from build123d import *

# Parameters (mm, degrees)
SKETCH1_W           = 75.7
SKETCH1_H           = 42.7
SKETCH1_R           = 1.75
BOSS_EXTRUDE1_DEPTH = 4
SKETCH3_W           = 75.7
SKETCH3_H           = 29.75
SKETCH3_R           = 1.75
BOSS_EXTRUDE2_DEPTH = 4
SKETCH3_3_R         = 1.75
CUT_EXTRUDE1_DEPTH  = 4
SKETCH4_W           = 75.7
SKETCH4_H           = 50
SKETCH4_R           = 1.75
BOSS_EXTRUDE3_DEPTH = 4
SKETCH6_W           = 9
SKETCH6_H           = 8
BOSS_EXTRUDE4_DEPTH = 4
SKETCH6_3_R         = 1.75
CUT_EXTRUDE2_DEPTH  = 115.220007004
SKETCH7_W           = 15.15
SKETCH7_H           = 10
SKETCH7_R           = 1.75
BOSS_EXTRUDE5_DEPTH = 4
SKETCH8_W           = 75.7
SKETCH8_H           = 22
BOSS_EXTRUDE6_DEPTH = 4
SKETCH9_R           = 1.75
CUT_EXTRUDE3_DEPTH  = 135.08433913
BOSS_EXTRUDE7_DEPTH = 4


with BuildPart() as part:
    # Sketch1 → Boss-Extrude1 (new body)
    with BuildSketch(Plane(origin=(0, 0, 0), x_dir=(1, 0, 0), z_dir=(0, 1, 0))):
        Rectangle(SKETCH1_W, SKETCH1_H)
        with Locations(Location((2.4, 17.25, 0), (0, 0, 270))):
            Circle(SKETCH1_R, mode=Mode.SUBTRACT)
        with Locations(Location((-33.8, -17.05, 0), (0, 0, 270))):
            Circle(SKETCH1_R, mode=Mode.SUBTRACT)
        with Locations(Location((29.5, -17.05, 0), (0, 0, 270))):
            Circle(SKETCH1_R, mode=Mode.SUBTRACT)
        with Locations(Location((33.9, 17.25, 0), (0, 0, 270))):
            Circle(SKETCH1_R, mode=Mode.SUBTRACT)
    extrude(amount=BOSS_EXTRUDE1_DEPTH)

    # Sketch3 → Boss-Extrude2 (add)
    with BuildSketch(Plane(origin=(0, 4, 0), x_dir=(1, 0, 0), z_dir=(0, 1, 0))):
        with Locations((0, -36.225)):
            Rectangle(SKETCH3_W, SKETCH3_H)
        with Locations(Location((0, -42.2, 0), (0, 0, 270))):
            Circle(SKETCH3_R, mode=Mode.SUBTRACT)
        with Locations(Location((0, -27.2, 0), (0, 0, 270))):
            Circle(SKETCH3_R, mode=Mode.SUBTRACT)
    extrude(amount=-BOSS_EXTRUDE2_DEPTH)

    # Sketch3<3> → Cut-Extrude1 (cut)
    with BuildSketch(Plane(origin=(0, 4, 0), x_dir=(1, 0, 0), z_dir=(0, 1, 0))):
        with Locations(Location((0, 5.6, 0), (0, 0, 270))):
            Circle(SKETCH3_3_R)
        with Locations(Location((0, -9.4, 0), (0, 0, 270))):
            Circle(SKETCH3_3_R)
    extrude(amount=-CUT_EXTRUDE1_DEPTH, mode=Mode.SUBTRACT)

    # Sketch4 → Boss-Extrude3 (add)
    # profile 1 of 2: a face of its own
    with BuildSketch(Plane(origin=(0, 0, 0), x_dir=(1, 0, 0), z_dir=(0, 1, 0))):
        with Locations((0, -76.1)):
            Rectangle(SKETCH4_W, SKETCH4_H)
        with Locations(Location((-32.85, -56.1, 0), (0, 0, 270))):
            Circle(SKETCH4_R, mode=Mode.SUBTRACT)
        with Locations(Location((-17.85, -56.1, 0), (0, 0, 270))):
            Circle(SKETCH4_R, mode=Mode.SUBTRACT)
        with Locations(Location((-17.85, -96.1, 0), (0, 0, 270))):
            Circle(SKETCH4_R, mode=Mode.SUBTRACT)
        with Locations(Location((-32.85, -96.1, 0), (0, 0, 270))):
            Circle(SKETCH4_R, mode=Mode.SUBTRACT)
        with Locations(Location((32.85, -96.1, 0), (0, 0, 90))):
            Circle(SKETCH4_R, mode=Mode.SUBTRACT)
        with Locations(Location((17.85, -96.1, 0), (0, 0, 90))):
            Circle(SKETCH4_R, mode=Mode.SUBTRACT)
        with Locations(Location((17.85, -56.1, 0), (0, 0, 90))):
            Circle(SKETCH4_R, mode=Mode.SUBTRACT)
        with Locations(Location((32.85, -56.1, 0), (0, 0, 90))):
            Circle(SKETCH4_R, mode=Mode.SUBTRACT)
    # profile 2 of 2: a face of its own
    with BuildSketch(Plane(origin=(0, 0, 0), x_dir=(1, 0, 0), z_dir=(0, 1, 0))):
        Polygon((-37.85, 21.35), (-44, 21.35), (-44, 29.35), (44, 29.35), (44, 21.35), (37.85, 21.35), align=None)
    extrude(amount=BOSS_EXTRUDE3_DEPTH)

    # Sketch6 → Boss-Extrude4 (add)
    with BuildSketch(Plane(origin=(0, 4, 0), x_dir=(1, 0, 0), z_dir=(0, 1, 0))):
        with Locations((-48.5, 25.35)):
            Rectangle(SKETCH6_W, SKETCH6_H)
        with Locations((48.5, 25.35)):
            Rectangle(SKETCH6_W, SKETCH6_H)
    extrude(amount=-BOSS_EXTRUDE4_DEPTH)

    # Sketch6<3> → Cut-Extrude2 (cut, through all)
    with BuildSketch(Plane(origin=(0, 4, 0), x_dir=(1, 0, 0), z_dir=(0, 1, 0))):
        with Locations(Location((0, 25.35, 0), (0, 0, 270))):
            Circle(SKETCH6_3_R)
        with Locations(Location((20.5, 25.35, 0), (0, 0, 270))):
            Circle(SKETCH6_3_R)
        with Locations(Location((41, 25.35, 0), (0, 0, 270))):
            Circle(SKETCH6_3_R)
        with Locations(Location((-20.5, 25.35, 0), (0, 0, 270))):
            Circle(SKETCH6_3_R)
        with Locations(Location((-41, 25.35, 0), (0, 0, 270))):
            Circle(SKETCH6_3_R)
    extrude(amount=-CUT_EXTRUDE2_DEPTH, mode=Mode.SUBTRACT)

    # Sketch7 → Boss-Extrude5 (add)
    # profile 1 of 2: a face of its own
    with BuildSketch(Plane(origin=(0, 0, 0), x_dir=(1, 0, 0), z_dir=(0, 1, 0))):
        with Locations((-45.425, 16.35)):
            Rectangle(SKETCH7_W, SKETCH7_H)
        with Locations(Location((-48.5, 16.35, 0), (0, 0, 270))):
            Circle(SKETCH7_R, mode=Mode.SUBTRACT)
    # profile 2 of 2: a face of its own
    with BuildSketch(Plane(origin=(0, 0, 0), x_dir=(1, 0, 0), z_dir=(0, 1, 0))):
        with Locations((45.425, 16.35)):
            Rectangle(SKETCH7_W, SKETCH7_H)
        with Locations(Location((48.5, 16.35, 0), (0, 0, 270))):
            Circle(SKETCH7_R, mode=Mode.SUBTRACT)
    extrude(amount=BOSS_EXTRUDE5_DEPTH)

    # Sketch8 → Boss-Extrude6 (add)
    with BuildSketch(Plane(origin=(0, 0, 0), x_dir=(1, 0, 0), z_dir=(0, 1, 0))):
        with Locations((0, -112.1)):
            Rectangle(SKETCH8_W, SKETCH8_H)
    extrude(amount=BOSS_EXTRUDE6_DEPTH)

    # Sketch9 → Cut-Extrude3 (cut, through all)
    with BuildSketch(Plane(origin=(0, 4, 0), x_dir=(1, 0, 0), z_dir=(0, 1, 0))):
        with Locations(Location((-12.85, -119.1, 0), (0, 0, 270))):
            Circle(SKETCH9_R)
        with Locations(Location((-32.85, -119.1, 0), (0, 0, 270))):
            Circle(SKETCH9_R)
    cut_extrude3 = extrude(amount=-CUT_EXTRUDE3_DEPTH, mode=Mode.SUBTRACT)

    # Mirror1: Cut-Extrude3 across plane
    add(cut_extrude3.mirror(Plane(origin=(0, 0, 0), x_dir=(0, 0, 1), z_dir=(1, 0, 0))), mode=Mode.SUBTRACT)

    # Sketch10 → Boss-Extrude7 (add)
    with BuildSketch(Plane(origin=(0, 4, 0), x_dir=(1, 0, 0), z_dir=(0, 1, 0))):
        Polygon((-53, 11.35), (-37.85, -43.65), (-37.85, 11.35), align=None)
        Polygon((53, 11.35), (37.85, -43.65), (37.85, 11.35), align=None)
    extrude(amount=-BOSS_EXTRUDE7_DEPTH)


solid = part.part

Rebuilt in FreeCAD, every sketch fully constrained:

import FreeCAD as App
import Part
import Sketcher
from FreeCAD import Vector

doc = App.newDocument("Part")
body = doc.addObject("PartDesign::Body", "Body")

sketch1 = body.newObject("Sketcher::SketchObject", "Sketch")
sketch1.AttachmentSupport = (doc.getObject("XZ_Plane"), [""])
sketch1.MapMode = "FlatFace"
sketch1.addGeometry([
    Part.LineSegment(Vector(-37.9, -21.4, 0), Vector(-37.9, 21.4, 0)),
    Part.LineSegment(Vector(-37.9, 21.4, 0), Vector(37.9, 21.4, 0)),
    Part.LineSegment(Vector(37.9, 21.4, 0), Vector(37.9, -21.4, 0)),
    Part.LineSegment(Vector(37.9, -21.4, 0), Vector(-37.9, -21.4, 0)),
    Part.Circle(Vector(-33.8, 17.1, 0), Vector(0, 0, 1), 1.8),
    Part.Circle(Vector(29.5, 17.1, 0), Vector(0, 0, 1), 1.8),
    Part.Circle(Vector(2.4, -17.2, 0), Vector(0, 0, 1), 1.8),
    Part.Circle(Vector(33.9, -17.2, 0), Vector(0, 0, 1), 1.8),
], False)
sketch1.addConstraint([
    Sketcher.Constraint("Coincident", 0, 2, 1, 1),
    Sketcher.Constraint("Coincident", 1, 2, 2, 1),
    Sketcher.Constraint("Coincident", 2, 2, 3, 1),
    Sketcher.Constraint("Coincident", 3, 2, 0, 1),
    Sketcher.Constraint("Vertical", 0),
    Sketcher.Constraint("Horizontal", 1),
    Sketcher.Constraint("Vertical", 2),
    Sketcher.Constraint("Horizontal", 3),
    Sketcher.Constraint("Equal", 4, 5),
    Sketcher.Constraint("Equal", 5, 6),
    Sketcher.Constraint("Equal", 6, 7),
    Sketcher.Constraint("Symmetric", 0, 2, 2, 2, -1, 1),
    Sketcher.Constraint("Horizontal", 4, 3, 5, 3),
    Sketcher.Constraint("Horizontal", 6, 3, 7, 3),
    Sketcher.Constraint("Diameter", 4, 3.5),
    Sketcher.Constraint("DistanceX", 1, 1, 1, 2, 75.7),
    Sketcher.Constraint("DistanceY", 0, 1, 0, 2, 42.7),
    Sketcher.Constraint("DistanceX", 4, 3, -1, 1, 33.8),
    Sketcher.Constraint("DistanceX", -1, 1, 5, 3, 29.5),
    Sketcher.Constraint("DistanceX", -1, 1, 6, 3, 2.4),
    Sketcher.Constraint("DistanceX", -1, 1, 7, 3, 33.9),
    Sketcher.Constraint("DistanceY", 6, 3, 5, 3, 34.3),
    Sketcher.Constraint("DistanceY", 4, 3, 0, 2, 4.3),
])
pad1 = body.newObject("PartDesign::Pad", "Pad")
pad1.Profile = sketch1
pad1.Length = 4
pad1.Reversed = True

sketch2 = body.newObject("Sketcher::SketchObject", "Sketch001")
sketch2.AttachmentSupport = (doc.getObject("XZ_Plane"), [""])
sketch2.MapMode = "FlatFace"
sketch2.AttachmentOffset = App.Placement(Vector(0, 0, -4), App.Rotation())
sketch2.addGeometry([
    Part.LineSegment(Vector(-37.9, 21.4, 0), Vector(-37.9, 51.1, 0)),
    Part.LineSegment(Vector(-37.9, 51.1, 0), Vector(37.9, 51.1, 0)),
    Part.LineSegment(Vector(37.9, 51.1, 0), Vector(37.9, 21.4, 0)),
    Part.LineSegment(Vector(37.9, 21.4, 0), Vector(-37.9, 21.4, 0)),
    Part.Circle(Vector(0, 42.2, 0), Vector(0, 0, 1), 1.8),
    Part.Circle(Vector(0, 27.2, 0), Vector(0, 0, 1), 1.8),
], False)
sketch2.addConstraint([
    Sketcher.Constraint("Coincident", 0, 2, 1, 1),
    Sketcher.Constraint("Coincident", 1, 2, 2, 1),
    Sketcher.Constraint("Coincident", 2, 2, 3, 1),
    Sketcher.Constraint("Coincident", 3, 2, 0, 1),
    Sketcher.Constraint("Vertical", 0),
    Sketcher.Constraint("Horizontal", 1),
    Sketcher.Constraint("Vertical", 2),
    Sketcher.Constraint("Horizontal", 3),
    Sketcher.Constraint("Equal", 4, 5),
    Sketcher.Constraint("PointOnObject", 4, 3, -2),
    Sketcher.Constraint("PointOnObject", 5, 3, -2),
    Sketcher.Constraint("Diameter", 4, 3.5),
    Sketcher.Constraint("DistanceX", 1, 1, 1, 2, 75.7),
    Sketcher.Constraint("DistanceY", 5, 3, 4, 3, 15.0),
    Sketcher.Constraint("DistanceY", 0, 1, 0, 2, 29.75),
    Sketcher.Constraint("DistanceY", -1, 1, 4, 3, 42.2),
    Sketcher.Constraint("DistanceY", -1, 1, 0, 2, 51.1),
    Sketcher.Constraint("DistanceX", 0, 2, -1, 1, 37.85),
])
pad2 = body.newObject("PartDesign::Pad", "Pad001")
pad2.Profile = sketch2
pad2.Length = 4

sketch3 = body.newObject("Sketcher::SketchObject", "Sketch002")
sketch3.AttachmentSupport = (doc.getObject("XZ_Plane"), [""])
sketch3.MapMode = "FlatFace"
sketch3.AttachmentOffset = App.Placement(Vector(0, 0, -4), App.Rotation())
sketch3.addGeometry([
    Part.Circle(Vector(0, -5.6, 0), Vector(0, 0, 1), 1.8),
    Part.Circle(Vector(0, 9.4, 0), Vector(0, 0, 1), 1.8),
], False)
sketch3.addConstraint([
    Sketcher.Constraint("Equal", 0, 1),
    Sketcher.Constraint("PointOnObject", 0, 3, -2),
    Sketcher.Constraint("PointOnObject", 1, 3, -2),
    Sketcher.Constraint("Diameter", 0, 3.5),
    Sketcher.Constraint("DistanceY", 0, 3, 1, 3, 15.0),
    Sketcher.Constraint("DistanceY", 0, 3, -1, 1, 5.6),
])
pocket1 = body.newObject("PartDesign::Pocket", "Pocket")
pocket1.Profile = sketch3
pocket1.Length = 4
pocket1.Reversed = True

sketch4 = body.newObject("Sketcher::SketchObject", "Sketch003")
sketch4.AttachmentSupport = (doc.getObject("XZ_Plane"), [""])
sketch4.MapMode = "FlatFace"
sketch4.addGeometry([
    Part.LineSegment(Vector(-37.9, 51.1, 0), Vector(-37.9, 101.1, 0)),
    Part.LineSegment(Vector(-37.9, 101.1, 0), Vector(37.9, 101.1, 0)),
    Part.LineSegment(Vector(37.9, 101.1, 0), Vector(37.9, 51.1, 0)),
    Part.LineSegment(Vector(37.9, 51.1, 0), Vector(-37.9, 51.1, 0)),
    Part.Circle(Vector(-32.9, 96.1, 0), Vector(0, 0, 1), 1.8),
    Part.Circle(Vector(-17.9, 96.1, 0), Vector(0, 0, 1), 1.8),
    Part.Circle(Vector(17.9, 96.1, 0), Vector(0, 0, 1), 1.8),
    Part.Circle(Vector(32.9, 96.1, 0), Vector(0, 0, 1), 1.8),
    Part.Circle(Vector(-32.9, 56.1, 0), Vector(0, 0, 1), 1.8),
    Part.Circle(Vector(-17.9, 56.1, 0), Vector(0, 0, 1), 1.8),
    Part.Circle(Vector(17.9, 56.1, 0), Vector(0, 0, 1), 1.8),
    Part.Circle(Vector(32.9, 56.1, 0), Vector(0, 0, 1), 1.8),
    Part.LineSegment(Vector(-44, -21.4, 0), Vector(44, -21.4, 0)),
    Part.LineSegment(Vector(44, -21.4, 0), Vector(44, -29.4, 0)),
    Part.LineSegment(Vector(44, -29.4, 0), Vector(-44, -29.4, 0)),
    Part.LineSegment(Vector(-44, -29.4, 0), Vector(-44, -21.4, 0)),
], False)
sketch4.addConstraint([
    Sketcher.Constraint("Coincident", 0, 2, 1, 1),
    Sketcher.Constraint("Coincident", 1, 2, 2, 1),
    Sketcher.Constraint("Coincident", 2, 2, 3, 1),
    Sketcher.Constraint("Coincident", 3, 2, 0, 1),
    Sketcher.Constraint("Coincident", 12, 2, 13, 1),
    Sketcher.Constraint("Coincident", 13, 2, 14, 1),
    Sketcher.Constraint("Coincident", 14, 2, 15, 1),
    Sketcher.Constraint("Coincident", 15, 2, 12, 1),
    Sketcher.Constraint("Vertical", 0),
    Sketcher.Constraint("Horizontal", 1),
    Sketcher.Constraint("Vertical", 2),
    Sketcher.Constraint("Horizontal", 3),
    Sketcher.Constraint("Horizontal", 12),
    Sketcher.Constraint("Vertical", 13),
    Sketcher.Constraint("Horizontal", 14),
    Sketcher.Constraint("Vertical", 15),
    Sketcher.Constraint("Equal", 4, 5),
    Sketcher.Constraint("Equal", 5, 6),
    Sketcher.Constraint("Equal", 6, 7),
    Sketcher.Constraint("Equal", 7, 8),
    Sketcher.Constraint("Equal", 8, 9),
    Sketcher.Constraint("Equal", 9, 10),
    Sketcher.Constraint("Equal", 10, 11),
    Sketcher.Constraint("Symmetric", 5, 3, 6, 3, -2),
    Sketcher.Constraint("Symmetric", 4, 3, 7, 3, -2),
    Sketcher.Constraint("Symmetric", 9, 3, 10, 3, -2),
    Sketcher.Constraint("Symmetric", 8, 3, 11, 3, -2),
    Sketcher.Constraint("Horizontal", 4, 3, 5, 3),
    Sketcher.Constraint("Horizontal", 8, 3, 9, 3),
    Sketcher.Constraint("Vertical", 4, 3, 8, 3),
    Sketcher.Constraint("Vertical", 5, 3, 9, 3),
    Sketcher.Constraint("Diameter", 4, 3.5),
    Sketcher.Constraint("DistanceX", 12, 1, 12, 2, 88.0),
    Sketcher.Constraint("DistanceY", 0, 1, 0, 2, 50.0),
    Sketcher.Constraint("DistanceY", 13, 2, 13, 1, 8.0),
    Sketcher.Constraint("DistanceX", 1, 1, 1, 2, 75.7),
    Sketcher.Constraint("DistanceX", -1, 1, 12, 2, 44.0),
    Sketcher.Constraint("DistanceX", 4, 3, 5, 3, 15.0),
    Sketcher.Constraint("DistanceY", 8, 3, 4, 3, 40.0),
    Sketcher.Constraint("DistanceX", 0, 2, 4, 3, 5.0),
    Sketcher.Constraint("DistanceY", 4, 3, 0, 2, 5.0),
    Sketcher.Constraint("DistanceX", 7, 3, 1, 2, 5.0),
    Sketcher.Constraint("DistanceY", -1, 1, 4, 3, 96.1),
    Sketcher.Constraint("DistanceY", 12, 2, -1, 1, 21.35),
])
pad3 = body.newObject("PartDesign::Pad", "Pad002")
pad3.Profile = sketch4
pad3.Length = 4
pad3.Reversed = True

sketch5 = body.newObject("Sketcher::SketchObject", "Sketch004")
sketch5.AttachmentSupport = (doc.getObject("XZ_Plane"), [""])
sketch5.MapMode = "FlatFace"
sketch5.AttachmentOffset = App.Placement(Vector(0, 0, -4), App.Rotation())
sketch5.addGeometry([
    Part.LineSegment(Vector(-53, -29, 0), Vector(-53, -21, 0)),
    Part.LineSegment(Vector(-53, -21, 0), Vector(-44, -21, 0)),
    Part.LineSegment(Vector(-44, -21, 0), Vector(-44, -29, 0)),
    Part.LineSegment(Vector(-44, -29, 0), Vector(-53, -29, 0)),
    Part.LineSegment(Vector(44, -29, 0), Vector(44, -21, 0)),
    Part.LineSegment(Vector(44, -21, 0), Vector(53, -21, 0)),
    Part.LineSegment(Vector(53, -21, 0), Vector(53, -29, 0)),
    Part.LineSegment(Vector(53, -29, 0), Vector(44, -29, 0)),
], False)
sketch5.addConstraint([
    Sketcher.Constraint("Coincident", 0, 2, 1, 1),
    Sketcher.Constraint("Coincident", 1, 2, 2, 1),
    Sketcher.Constraint("Coincident", 2, 2, 3, 1),
    Sketcher.Constraint("Coincident", 3, 2, 0, 1),
    Sketcher.Constraint("Coincident", 4, 2, 5, 1),
    Sketcher.Constraint("Coincident", 5, 2, 6, 1),
    Sketcher.Constraint("Coincident", 6, 2, 7, 1),
    Sketcher.Constraint("Coincident", 7, 2, 4, 1),
    Sketcher.Constraint("Vertical", 0),
    Sketcher.Constraint("Horizontal", 1),
    Sketcher.Constraint("Vertical", 2),
    Sketcher.Constraint("Horizontal", 3),
    Sketcher.Constraint("Vertical", 4),
    Sketcher.Constraint("Horizontal", 5),
    Sketcher.Constraint("Vertical", 6),
    Sketcher.Constraint("Horizontal", 7),
    Sketcher.Constraint("Symmetric", 1, 2, 4, 2, -2),
    Sketcher.Constraint("Symmetric", 3, 2, 6, 2, -2),
    Sketcher.Constraint("DistanceX", 1, 1, 1, 2, 9.0),
    Sketcher.Constraint("DistanceY", 0, 1, 0, 2, 8.0),
    Sketcher.Constraint("DistanceX", 0, 2, -1, 1, 53.0),
    Sketcher.Constraint("DistanceY", 0, 2, -1, 1, 21.35),
])
pad4 = body.newObject("PartDesign::Pad", "Pad003")
pad4.Profile = sketch5
pad4.Length = 4

sketch6 = body.newObject("Sketcher::SketchObject", "Sketch005")
sketch6.AttachmentSupport = (doc.getObject("XZ_Plane"), [""])
sketch6.MapMode = "FlatFace"
sketch6.AttachmentOffset = App.Placement(Vector(0, 0, -4), App.Rotation())
sketch6.addGeometry([
    Part.Circle(Vector(0, -25.4, 0), Vector(0, 0, 1), 1.8),
    Part.Circle(Vector(20.5, -25.4, 0), Vector(0, 0, 1), 1.8),
    Part.Circle(Vector(41, -25.4, 0), Vector(0, 0, 1), 1.8),
    Part.Circle(Vector(-20.5, -25.4, 0), Vector(0, 0, 1), 1.8),
    Part.Circle(Vector(-41, -25.4, 0), Vector(0, 0, 1), 1.8),
], False)
sketch6.addConstraint([
    Sketcher.Constraint("Equal", 0, 1),
    Sketcher.Constraint("Equal", 1, 2),
    Sketcher.Constraint("Equal", 2, 3),
    Sketcher.Constraint("Equal", 3, 4),
    Sketcher.Constraint("Symmetric", 1, 3, 3, 3, -2),
    Sketcher.Constraint("Symmetric", 2, 3, 4, 3, -2),
    Sketcher.Constraint("PointOnObject", 0, 3, -2),
    Sketcher.Constraint("Horizontal", 0, 3, 1, 3),
    Sketcher.Constraint("Horizontal", 1, 3, 2, 3),
    Sketcher.Constraint("Diameter", 0, 3.5),
    Sketcher.Constraint("DistanceX", -1, 1, 2, 3, 41.0),
    Sketcher.Constraint("DistanceX", 3, 3, 1, 3, 41.0),
    Sketcher.Constraint("DistanceY", 0, 3, -1, 1, 25.35),
])
pocket2 = body.newObject("PartDesign::Pocket", "Pocket001")
pocket2.Profile = sketch6
pocket2.Type = "ThroughAll"
pocket2.Reversed = True

sketch7 = body.newObject("Sketcher::SketchObject", "Sketch006")
sketch7.AttachmentSupport = (doc.getObject("XZ_Plane"), [""])
sketch7.MapMode = "FlatFace"
sketch7.addGeometry([
    Part.LineSegment(Vector(-53, -21.4, 0), Vector(-53, -11.3, 0)),
    Part.LineSegment(Vector(-53, -11.3, 0), Vector(-37.9, -11.3, 0)),
    Part.LineSegment(Vector(-37.9, -11.3, 0), Vector(-37.9, -21.4, 0)),
    Part.LineSegment(Vector(-37.9, -21.4, 0), Vector(-53, -21.4, 0)),
    Part.Circle(Vector(-48.5, -16.4, 0), Vector(0, 0, 1), 1.8),
    Part.LineSegment(Vector(37.9, -21.4, 0), Vector(37.9, -11.3, 0)),
    Part.LineSegment(Vector(37.9, -11.3, 0), Vector(53, -11.3, 0)),
    Part.LineSegment(Vector(53, -11.3, 0), Vector(53, -21.4, 0)),
    Part.LineSegment(Vector(53, -21.4, 0), Vector(37.9, -21.4, 0)),
    Part.Circle(Vector(48.5, -16.4, 0), Vector(0, 0, 1), 1.8),
], False)
sketch7.addConstraint([
    Sketcher.Constraint("Coincident", 0, 2, 1, 1),
    Sketcher.Constraint("Coincident", 1, 2, 2, 1),
    Sketcher.Constraint("Coincident", 2, 2, 3, 1),
    Sketcher.Constraint("Coincident", 3, 2, 0, 1),
    Sketcher.Constraint("Coincident", 5, 2, 6, 1),
    Sketcher.Constraint("Coincident", 6, 2, 7, 1),
    Sketcher.Constraint("Coincident", 7, 2, 8, 1),
    Sketcher.Constraint("Coincident", 8, 2, 5, 1),
    Sketcher.Constraint("Vertical", 0),
    Sketcher.Constraint("Horizontal", 1),
    Sketcher.Constraint("Vertical", 2),
    Sketcher.Constraint("Horizontal", 3),
    Sketcher.Constraint("Vertical", 5),
    Sketcher.Constraint("Horizontal", 6),
    Sketcher.Constraint("Vertical", 7),
    Sketcher.Constraint("Horizontal", 8),
    Sketcher.Constraint("Equal", 4, 9),
    Sketcher.Constraint("Symmetric", 4, 3, 9, 3, -2),
    Sketcher.Constraint("Symmetric", 1, 2, 5, 2, -2),
    Sketcher.Constraint("Symmetric", 3, 2, 7, 2, -2),
    Sketcher.Constraint("Diameter", 4, 3.5),
    Sketcher.Constraint("DistanceY", 0, 1, 0, 2, 10.0),
    Sketcher.Constraint("DistanceX", 0, 2, -1, 1, 53.0),
    Sketcher.Constraint("DistanceX", 4, 3, 9, 3, 97.0),
    Sketcher.Constraint("DistanceY", 4, 3, 0, 2, 5.0),
    Sketcher.Constraint("DistanceX", 1, 1, 1, 2, 15.15),
    Sketcher.Constraint("DistanceY", 4, 3, -1, 1, 16.35),
])
pad5 = body.newObject("PartDesign::Pad", "Pad004")
pad5.Profile = sketch7
pad5.Length = 4
pad5.Reversed = True

sketch8 = body.newObject("Sketcher::SketchObject", "Sketch007")
sketch8.AttachmentSupport = (doc.getObject("XZ_Plane"), [""])
sketch8.MapMode = "FlatFace"
sketch8.addGeometry([
    Part.LineSegment(Vector(-38, 101, 0), Vector(-38, 123, 0)),
    Part.LineSegment(Vector(-38, 123, 0), Vector(38, 123, 0)),
    Part.LineSegment(Vector(38, 123, 0), Vector(38, 101, 0)),
    Part.LineSegment(Vector(38, 101, 0), Vector(-38, 101, 0)),
], False)
sketch8.addConstraint([
    Sketcher.Constraint("Coincident", 0, 2, 1, 1),
    Sketcher.Constraint("Coincident", 1, 2, 2, 1),
    Sketcher.Constraint("Coincident", 2, 2, 3, 1),
    Sketcher.Constraint("Coincident", 3, 2, 0, 1),
    Sketcher.Constraint("Vertical", 0),
    Sketcher.Constraint("Horizontal", 1),
    Sketcher.Constraint("Vertical", 2),
    Sketcher.Constraint("Horizontal", 3),
    Sketcher.Constraint("DistanceY", 0, 1, 0, 2, 22.0),
    Sketcher.Constraint("DistanceX", 1, 1, 1, 2, 75.7),
    Sketcher.Constraint("DistanceY", -1, 1, 0, 2, 123.1),
    Sketcher.Constraint("DistanceX", 0, 2, -1, 1, 37.85),
])
pad6 = body.newObject("PartDesign::Pad", "Pad005")
pad6.Profile = sketch8
pad6.Length = 4
pad6.Reversed = True

sketch9 = body.newObject("Sketcher::SketchObject", "Sketch008")
sketch9.AttachmentSupport = (doc.getObject("XZ_Plane"), [""])
sketch9.MapMode = "FlatFace"
sketch9.AttachmentOffset = App.Placement(Vector(0, 0, -4), App.Rotation())
sketch9.addGeometry([
    Part.Circle(Vector(-12.8, 119.1, 0), Vector(0, 0, 1), 1.8),
    Part.Circle(Vector(-32.9, 119.1, 0), Vector(0, 0, 1), 1.8),
], False)
sketch9.addConstraint([
    Sketcher.Constraint("Equal", 0, 1),
    Sketcher.Constraint("Horizontal", 0, 3, 1, 3),
    Sketcher.Constraint("Diameter", 0, 3.5),
    Sketcher.Constraint("DistanceX", 1, 3, 0, 3, 20.0),
    Sketcher.Constraint("DistanceY", -1, 1, 0, 3, 119.1),
    Sketcher.Constraint("DistanceX", 0, 3, -1, 1, 12.85),
])
pocket3 = body.newObject("PartDesign::Pocket", "Pocket002")
pocket3.Profile = sketch9
pocket3.Type = "ThroughAll"
pocket3.Reversed = True
doc.recompute()

mirrored = body.newObject("PartDesign::Mirrored", "Mirrored")
mirrored.Originals = [pocket3]
mirrored.MirrorPlane = (doc.getObject("YZ_Plane"), [""])
body.Tip = mirrored

sketch10 = body.newObject("Sketcher::SketchObject", "Sketch009")
sketch10.AttachmentSupport = (doc.getObject("XZ_Plane"), [""])
sketch10.MapMode = "FlatFace"
sketch10.AttachmentOffset = App.Placement(Vector(0, 0, -4), App.Rotation())
sketch10.addGeometry([
    Part.LineSegment(Vector(-53, -11, 0), Vector(-38, 44, 0)),
    Part.LineSegment(Vector(-38, 44, 0), Vector(-38, -11, 0)),
    Part.LineSegment(Vector(-38, -11, 0), Vector(-53, -11, 0)),
    Part.LineSegment(Vector(38, 44, 0), Vector(53, -11, 0)),
    Part.LineSegment(Vector(53, -11, 0), Vector(38, -11, 0)),
    Part.LineSegment(Vector(38, -11, 0), Vector(38, 44, 0)),
], False)
sketch10.addConstraint([
    Sketcher.Constraint("Coincident", 0, 2, 1, 1),
    Sketcher.Constraint("Coincident", 1, 2, 2, 1),
    Sketcher.Constraint("Coincident", 2, 2, 0, 1),
    Sketcher.Constraint("Coincident", 3, 2, 4, 1),
    Sketcher.Constraint("Coincident", 4, 2, 5, 1),
    Sketcher.Constraint("Coincident", 5, 2, 3, 1),
    Sketcher.Constraint("Vertical", 1),
    Sketcher.Constraint("Horizontal", 2),
    Sketcher.Constraint("Horizontal", 4),
    Sketcher.Constraint("Vertical", 5),
    Sketcher.Constraint("Symmetric", 2, 2, 3, 2, -2),
    Sketcher.Constraint("Symmetric", 0, 2, 5, 2, -2),
    Sketcher.Constraint("DistanceY", 1, 2, 1, 1, 55.0),
    Sketcher.Constraint("DistanceX", 2, 2, -1, 1, 53.0),
    Sketcher.Constraint("DistanceX", 2, 2, 2, 1, 15.15),
    Sketcher.Constraint("DistanceY", -1, 1, 0, 2, 43.65),
])
pad7 = body.newObject("PartDesign::Pad", "Pad006")
pad7.Profile = sketch10
pad7.Length = 4

doc.recompute()
